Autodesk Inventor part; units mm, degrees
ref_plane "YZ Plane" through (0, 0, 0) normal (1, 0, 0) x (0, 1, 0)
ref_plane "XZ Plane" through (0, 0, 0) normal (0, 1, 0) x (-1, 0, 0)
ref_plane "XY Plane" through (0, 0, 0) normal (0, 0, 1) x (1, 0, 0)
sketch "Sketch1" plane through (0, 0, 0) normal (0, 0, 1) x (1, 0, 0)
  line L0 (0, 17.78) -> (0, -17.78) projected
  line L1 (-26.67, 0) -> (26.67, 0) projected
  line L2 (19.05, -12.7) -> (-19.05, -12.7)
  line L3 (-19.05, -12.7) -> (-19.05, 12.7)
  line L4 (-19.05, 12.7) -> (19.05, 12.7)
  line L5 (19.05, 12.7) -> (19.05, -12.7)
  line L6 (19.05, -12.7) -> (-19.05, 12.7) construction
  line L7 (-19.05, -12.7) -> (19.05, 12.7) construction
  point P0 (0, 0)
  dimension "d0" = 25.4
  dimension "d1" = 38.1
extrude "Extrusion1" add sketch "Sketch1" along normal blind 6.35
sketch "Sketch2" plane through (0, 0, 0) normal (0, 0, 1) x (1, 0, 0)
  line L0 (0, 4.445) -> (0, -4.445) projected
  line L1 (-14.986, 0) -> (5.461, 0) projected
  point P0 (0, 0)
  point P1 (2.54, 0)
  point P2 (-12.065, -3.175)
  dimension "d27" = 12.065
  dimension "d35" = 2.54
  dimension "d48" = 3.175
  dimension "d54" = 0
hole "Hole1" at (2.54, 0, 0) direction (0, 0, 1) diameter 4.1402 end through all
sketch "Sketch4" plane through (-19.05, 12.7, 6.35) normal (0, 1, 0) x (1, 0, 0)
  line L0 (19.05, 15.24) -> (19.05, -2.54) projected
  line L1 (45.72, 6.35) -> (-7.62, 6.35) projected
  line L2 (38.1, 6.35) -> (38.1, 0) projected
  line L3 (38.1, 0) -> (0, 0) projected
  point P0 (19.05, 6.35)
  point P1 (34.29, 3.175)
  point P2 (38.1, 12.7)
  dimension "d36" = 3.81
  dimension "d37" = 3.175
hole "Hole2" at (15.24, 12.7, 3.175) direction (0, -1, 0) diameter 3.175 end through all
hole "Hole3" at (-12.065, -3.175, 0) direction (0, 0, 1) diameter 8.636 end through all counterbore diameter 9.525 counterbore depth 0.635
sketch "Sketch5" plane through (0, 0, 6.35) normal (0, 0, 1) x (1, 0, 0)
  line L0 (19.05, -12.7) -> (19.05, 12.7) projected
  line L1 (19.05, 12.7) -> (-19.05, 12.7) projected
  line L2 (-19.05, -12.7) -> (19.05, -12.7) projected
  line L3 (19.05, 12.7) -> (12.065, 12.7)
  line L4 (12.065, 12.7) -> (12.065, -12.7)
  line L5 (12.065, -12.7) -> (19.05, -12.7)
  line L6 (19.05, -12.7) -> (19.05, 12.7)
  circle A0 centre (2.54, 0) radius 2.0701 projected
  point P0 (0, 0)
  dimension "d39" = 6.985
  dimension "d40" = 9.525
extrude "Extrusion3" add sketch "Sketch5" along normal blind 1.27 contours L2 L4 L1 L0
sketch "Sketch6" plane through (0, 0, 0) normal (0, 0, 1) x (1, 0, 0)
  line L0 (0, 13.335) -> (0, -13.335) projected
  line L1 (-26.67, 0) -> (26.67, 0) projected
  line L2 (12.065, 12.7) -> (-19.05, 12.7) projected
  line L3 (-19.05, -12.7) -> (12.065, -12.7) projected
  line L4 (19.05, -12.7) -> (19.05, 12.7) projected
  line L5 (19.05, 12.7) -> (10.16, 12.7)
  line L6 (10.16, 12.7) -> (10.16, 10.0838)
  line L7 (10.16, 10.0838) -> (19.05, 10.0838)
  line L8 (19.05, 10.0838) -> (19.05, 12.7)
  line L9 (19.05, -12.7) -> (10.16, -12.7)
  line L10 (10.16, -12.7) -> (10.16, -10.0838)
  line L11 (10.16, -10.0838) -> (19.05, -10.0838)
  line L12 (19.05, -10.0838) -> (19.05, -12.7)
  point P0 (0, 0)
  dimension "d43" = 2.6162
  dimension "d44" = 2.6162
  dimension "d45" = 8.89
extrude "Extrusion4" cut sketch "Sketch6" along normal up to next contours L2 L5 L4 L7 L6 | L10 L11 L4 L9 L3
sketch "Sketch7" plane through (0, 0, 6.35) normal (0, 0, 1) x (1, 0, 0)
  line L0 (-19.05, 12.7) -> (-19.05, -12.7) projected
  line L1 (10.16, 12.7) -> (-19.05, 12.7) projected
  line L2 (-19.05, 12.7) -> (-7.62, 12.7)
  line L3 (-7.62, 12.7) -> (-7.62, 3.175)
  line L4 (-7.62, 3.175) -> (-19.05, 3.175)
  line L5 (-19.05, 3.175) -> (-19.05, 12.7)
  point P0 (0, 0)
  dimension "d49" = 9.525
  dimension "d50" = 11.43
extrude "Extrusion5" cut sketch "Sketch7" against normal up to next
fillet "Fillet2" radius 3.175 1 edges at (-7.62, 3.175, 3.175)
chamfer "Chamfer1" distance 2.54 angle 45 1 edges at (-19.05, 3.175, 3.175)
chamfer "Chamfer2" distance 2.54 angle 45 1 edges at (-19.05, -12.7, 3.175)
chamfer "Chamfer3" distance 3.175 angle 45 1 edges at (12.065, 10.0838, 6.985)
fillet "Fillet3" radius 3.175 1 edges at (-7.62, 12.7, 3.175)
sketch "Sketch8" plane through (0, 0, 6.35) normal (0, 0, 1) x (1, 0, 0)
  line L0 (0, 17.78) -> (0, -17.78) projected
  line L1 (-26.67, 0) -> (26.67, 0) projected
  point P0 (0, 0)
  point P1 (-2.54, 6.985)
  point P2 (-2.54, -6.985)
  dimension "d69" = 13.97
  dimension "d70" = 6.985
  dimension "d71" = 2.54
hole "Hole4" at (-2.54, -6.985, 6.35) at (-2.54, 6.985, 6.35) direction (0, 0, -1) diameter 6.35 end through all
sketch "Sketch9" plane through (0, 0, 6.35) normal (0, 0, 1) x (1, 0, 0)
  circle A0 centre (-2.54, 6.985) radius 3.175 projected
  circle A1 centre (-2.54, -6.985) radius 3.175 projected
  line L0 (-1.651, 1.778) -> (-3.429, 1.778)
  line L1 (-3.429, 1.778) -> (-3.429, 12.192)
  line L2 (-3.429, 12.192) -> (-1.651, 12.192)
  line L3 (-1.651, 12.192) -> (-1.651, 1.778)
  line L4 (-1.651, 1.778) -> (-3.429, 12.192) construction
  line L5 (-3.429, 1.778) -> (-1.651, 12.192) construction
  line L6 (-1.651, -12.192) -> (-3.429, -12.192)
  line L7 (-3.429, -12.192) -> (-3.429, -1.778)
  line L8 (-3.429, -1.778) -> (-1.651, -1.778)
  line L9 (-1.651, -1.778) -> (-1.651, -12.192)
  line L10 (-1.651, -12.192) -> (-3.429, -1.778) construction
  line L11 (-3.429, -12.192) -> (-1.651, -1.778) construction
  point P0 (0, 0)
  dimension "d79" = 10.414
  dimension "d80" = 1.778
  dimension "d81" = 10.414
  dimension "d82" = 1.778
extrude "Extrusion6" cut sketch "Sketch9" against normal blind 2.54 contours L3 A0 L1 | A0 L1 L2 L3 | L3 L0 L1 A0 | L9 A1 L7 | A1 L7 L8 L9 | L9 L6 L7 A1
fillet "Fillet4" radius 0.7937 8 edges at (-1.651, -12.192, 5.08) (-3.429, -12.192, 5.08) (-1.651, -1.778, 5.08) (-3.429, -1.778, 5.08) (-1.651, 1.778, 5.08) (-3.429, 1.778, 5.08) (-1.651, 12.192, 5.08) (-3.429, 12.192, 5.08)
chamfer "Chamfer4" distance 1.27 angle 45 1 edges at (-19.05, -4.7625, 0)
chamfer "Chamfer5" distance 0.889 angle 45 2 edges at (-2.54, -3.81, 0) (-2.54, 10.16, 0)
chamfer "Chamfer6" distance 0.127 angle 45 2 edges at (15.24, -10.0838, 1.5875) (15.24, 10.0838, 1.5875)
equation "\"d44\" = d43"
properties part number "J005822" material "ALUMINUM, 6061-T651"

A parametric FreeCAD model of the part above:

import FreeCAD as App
import Part
import Sketcher
from FreeCAD import Vector
Q = App.Units.Quantity


def edges_at(feature, points):
    """Names of the edges that pass closest to the given points."""
    edges = feature.Shape.Edges
    near = lambda p: min(range(len(edges)), key=lambda i: edges[i].distToShape(Part.Vertex(*p))[0])
    return sorted({f"Edge{near(p) + 1}" for p in points})


def add_polygon(sketch, points):
    """Adds a closed chain of lines whose ends are joined by coincident constraints."""
    first, n = sketch.GeometryCount, len(points)
    for a, b in zip(points, points[1:] + points[:1]):
        sketch.addGeometry(Part.LineSegment(App.Vector(*a, 0), App.Vector(*b, 0)), False)
    for i in range(n):
        sketch.addConstraint(Sketcher.Constraint("Coincident", first + i, 2, first + (i + 1) % n, 1))

doc = App.newDocument("Part")
body = doc.addObject("PartDesign::Body", "Body")

# Sketch on XY plane
sketch1 = body.newObject("Sketcher::SketchObject", "Sketch")
sketch1.AttachmentSupport = (doc.getObject("XY_Plane"), [""])
sketch1.MapMode = "FlatFace"
add_polygon(sketch1, [(19, 13), (-19, 13), (-19, -13), (19, -13)])  # lines 0-3
sketch1.addConstraint(Sketcher.Constraint("Horizontal", 0))
sketch1.addConstraint(Sketcher.Constraint("Vertical", 1))
sketch1.addConstraint(Sketcher.Constraint("Horizontal", 2))
sketch1.addConstraint(Sketcher.Constraint("Vertical", 3))
sketch1.addConstraint(Sketcher.Constraint("Symmetric", 0, 2, 2, 2, -1, 1))
sketch1.addConstraint(Sketcher.Constraint("DistanceY", 1, 2, 1, 1, Q("1 in")))
sketch1.addConstraint(Sketcher.Constraint("DistanceX", 0, 2, 0, 1, Q("1.5 in")))
pad1 = body.newObject("PartDesign::Pad", "Pad")
pad1.Profile = sketch1
pad1.Length = Q("0.25 in")

# Sketch on XY plane
sketch2 = body.newObject("Sketcher::SketchObject", "Sketch001")
sketch2.AttachmentSupport = (doc.getObject("XY_Plane"), [""])
sketch2.MapMode = "FlatFace"
sketch2.addGeometry(Part.Circle(Vector(2.5, 0, 0), Vector(0, 0, 1), 2.1), False)
sketch2.addConstraint(Sketcher.Constraint("PointOnObject", 0, 3, -1))
sketch2.addConstraint(Sketcher.Constraint("Diameter", 0, Q("0.163 in")))
sketch2.addConstraint(Sketcher.Constraint("DistanceX", -1, 1, 0, 3, Q("0.1 in")))
doc.recompute()
hole = body.newObject("PartDesign::Hole", "Hole")
hole.Profile = sketch2
hole.ThreadType = "None"
hole.Diameter = Q("0.163 in")
hole.DepthType = "ThroughAll"
hole.Reversed = True

# Sketch on XZ plane
sketch3 = body.newObject("Sketcher::SketchObject", "Sketch002")
sketch3.AttachmentSupport = (doc.getObject("XZ_Plane"), [""])
sketch3.MapMode = "FlatFace"
sketch3.AttachmentOffset = App.Placement(Vector(0, 0, -0.5 * 25.4), App.Rotation())
sketch3.addGeometry(Part.Circle(Vector(15.2, 3.2, 0), Vector(0, 0, 1), 1.6), False)
sketch3.addConstraint(Sketcher.Constraint("Diameter", 0, Q("0.125 in")))
sketch3.addConstraint(Sketcher.Constraint("DistanceX", -1, 1, 0, 3, Q("0.6 in")))
sketch3.addConstraint(Sketcher.Constraint("DistanceY", -1, 1, 0, 3, Q("0.125 in")))
doc.recompute()
hole2 = body.newObject("PartDesign::Hole", "Hole001")
hole2.Profile = sketch3
hole2.ThreadType = "None"
hole2.Diameter = Q("0.125 in")
hole2.DepthType = "ThroughAll"
hole2.Reversed = True

# Sketch on XY plane
sketch4 = body.newObject("Sketcher::SketchObject", "Sketch003")
sketch4.AttachmentSupport = (doc.getObject("XY_Plane"), [""])
sketch4.MapMode = "FlatFace"
sketch4.addGeometry(Part.Circle(Vector(-12.1, -3.2, 0), Vector(0, 0, 1), 4.3), False)
sketch4.addConstraint(Sketcher.Constraint("Diameter", 0, Q("0.34 in")))
sketch4.addConstraint(Sketcher.Constraint("DistanceX", 0, 3, -1, 1, Q("0.475 in")))
sketch4.addConstraint(Sketcher.Constraint("DistanceY", 0, 3, -1, 1, Q("0.125 in")))
doc.recompute()
hole3 = body.newObject("PartDesign::Hole", "Hole002")
hole3.Profile = sketch4
hole3.ThreadType = "None"
hole3.Diameter = Q("0.34 in")
hole3.DepthType = "ThroughAll"
hole3.HoleCutType = "Counterbore"
hole3.HoleCutDiameter = Q("0.375 in")
hole3.HoleCutDepth = Q("0.025 in")
hole3.Reversed = True

# Sketch on XY plane
sketch5 = body.newObject("Sketcher::SketchObject", "Sketch004")
sketch5.AttachmentSupport = (doc.getObject("XY_Plane"), [""])
sketch5.MapMode = "FlatFace"
sketch5.AttachmentOffset = App.Placement(Vector(0, 0, 0.25 * 25.4), App.Rotation())
add_polygon(sketch5, [(12, -13), (19, -13), (19, 13), (12, 13)])  # lines 0-3
sketch5.addConstraint(Sketcher.Constraint("Horizontal", 0))
sketch5.addConstraint(Sketcher.Constraint("Vertical", 1))
sketch5.addConstraint(Sketcher.Constraint("Horizontal", 2))
sketch5.addConstraint(Sketcher.Constraint("Vertical", 3))
sketch5.addConstraint(Sketcher.Constraint("DistanceX", 0, 1, 0, 2, Q("0.275 in")))
sketch5.addConstraint(Sketcher.Constraint("DistanceY", 1, 1, 1, 2, Q("1 in")))
sketch5.addConstraint(Sketcher.Constraint("DistanceY", 0, 2, -1, 1, Q("0.5 in")))
sketch5.addConstraint(Sketcher.Constraint("DistanceX", -1, 1, 0, 2, Q("0.75 in")))
pad2 = body.newObject("PartDesign::Pad", "Pad001")
pad2.Profile = sketch5
pad2.Length = Q("0.05 in")

# Sketch on XY plane
sketch6 = body.newObject("Sketcher::SketchObject", "Sketch005")
sketch6.AttachmentSupport = (doc.getObject("XY_Plane"), [""])
sketch6.MapMode = "FlatFace"
add_polygon(sketch6, [(19.1, 12.7), (10.2, 12.7), (10.2, 10.1), (19.1, 10.1)])  # lines 0-3
add_polygon(sketch6, [(10.2, -10.1), (10.2, -12.7), (19.1, -12.7), (19.1, -10.1)])  # lines 4-7
sketch6.addConstraint(Sketcher.Constraint("Horizontal", 0))
sketch6.addConstraint(Sketcher.Constraint("Vertical", 1))
sketch6.addConstraint(Sketcher.Constraint("Horizontal", 2))
sketch6.addConstraint(Sketcher.Constraint("Vertical", 3))
sketch6.addConstraint(Sketcher.Constraint("Vertical", 4))
sketch6.addConstraint(Sketcher.Constraint("Horizontal", 5))
sketch6.addConstraint(Sketcher.Constraint("Vertical", 6))
sketch6.addConstraint(Sketcher.Constraint("Horizontal", 7))
sketch6.addConstraint(Sketcher.Constraint("Symmetric", 0, 2, 4, 2, -1))
sketch6.addConstraint(Sketcher.Constraint("Symmetric", 2, 2, 6, 2, -1))
sketch6.addConstraint(Sketcher.Constraint("DistanceX", 0, 2, 0, 1, Q("0.35 in")))
sketch6.addConstraint(Sketcher.Constraint("DistanceY", 1, 2, 1, 1, Q("0.103 in")))
sketch6.addConstraint(Sketcher.Constraint("DistanceY", 4, 2, 0, 2, Q("1 in")))
sketch6.addConstraint(Sketcher.Constraint("DistanceX", -1, 1, 0, 2, Q("0.4 in")))
pocket1 = body.newObject("PartDesign::Pocket", "Pocket")
pocket1.Profile = sketch6
pocket1.Length = Q("0.3 in")
pocket1.Reversed = True

# Sketch on XY plane
sketch7 = body.newObject("Sketcher::SketchObject", "Sketch006")
sketch7.AttachmentSupport = (doc.getObject("XY_Plane"), [""])
sketch7.MapMode = "FlatFace"
sketch7.AttachmentOffset = App.Placement(Vector(0, 0, 0.25 * 25.4), App.Rotation())
add_polygon(sketch7, [(-8, 13), (-19, 13), (-19, 3), (-8, 3)])  # lines 0-3
sketch7.addConstraint(Sketcher.Constraint("Horizontal", 0))
sketch7.addConstraint(Sketcher.Constraint("Vertical", 1))
sketch7.addConstraint(Sketcher.Constraint("Horizontal", 2))
sketch7.addConstraint(Sketcher.Constraint("Vertical", 3))
sketch7.addConstraint(Sketcher.Constraint("DistanceX", 0, 2, 0, 1, Q("0.45 in")))
sketch7.addConstraint(Sketcher.Constraint("DistanceY", 1, 2, 1, 1, Q("0.375 in")))
sketch7.addConstraint(Sketcher.Constraint("DistanceY", -1, 1, 0, 2, Q("0.5 in")))
sketch7.addConstraint(Sketcher.Constraint("DistanceX", 2, 2, -1, 1, Q("0.3 in")))
pocket2 = body.newObject("PartDesign::Pocket", "Pocket001")
pocket2.Profile = sketch7
pocket2.Type = "UpToFirst"
doc.recompute()

fillet = body.newObject("PartDesign::Fillet", "Fillet")
fillet.Base = (pocket2, edges_at(pocket2, [(-7.62, 3.175, 3.175)]))
fillet.Radius = Q("0.125 in")
doc.recompute()

chamfer = body.newObject("PartDesign::Chamfer", "Chamfer")
chamfer.Base = (fillet, edges_at(fillet, [(-19.05, 3.175, 3.175)]))
chamfer.Size = Q("0.1 in")
doc.recompute()

chamfer2 = body.newObject("PartDesign::Chamfer", "Chamfer001")
chamfer2.Base = (chamfer, edges_at(chamfer, [(-19.05, -12.7, 3.175)]))
chamfer2.Size = Q("0.1 in")
doc.recompute()

chamfer3 = body.newObject("PartDesign::Chamfer", "Chamfer002")
chamfer3.Base = (chamfer2, edges_at(chamfer2, [(12.065, 10.084, 6.985)]))
chamfer3.Size = Q("0.125 in")
doc.recompute()

fillet2 = body.newObject("PartDesign::Fillet", "Fillet001")
fillet2.Base = (chamfer3, edges_at(chamfer3, [(-7.62, 12.7, 3.175)]))
fillet2.Radius = Q("0.125 in")

# Sketch on XY plane
sketch8 = body.newObject("Sketcher::SketchObject", "Sketch007")
sketch8.AttachmentSupport = (doc.getObject("XY_Plane"), [""])
sketch8.MapMode = "FlatFace"
sketch8.AttachmentOffset = App.Placement(Vector(0, 0, 0.25 * 25.4), App.Rotation())
sketch8.addGeometry(Part.Circle(Vector(-2.5, -7, 0), Vector(0, 0, 1), 3.2), False)
sketch8.addGeometry(Part.Circle(Vector(-2.5, 7, 0), Vector(0, 0, 1), 3.2), False)
sketch8.addConstraint(Sketcher.Constraint("Equal", 0, 1))
sketch8.addConstraint(Sketcher.Constraint("Symmetric", 0, 3, 1, 3, -1))
sketch8.addConstraint(Sketcher.Constraint("Diameter", 0, Q("0.25 in")))
sketch8.addConstraint(Sketcher.Constraint("DistanceX", 0, 3, -1, 1, Q("0.1 in")))
sketch8.addConstraint(Sketcher.Constraint("DistanceY", 0, 3, 1, 3, Q("0.55 in")))
doc.recompute()
hole4 = body.newObject("PartDesign::Hole", "Hole003")
hole4.Profile = sketch8
hole4.ThreadType = "None"
hole4.Diameter = Q("0.25 in")
hole4.DepthType = "ThroughAll"

# Sketch on XY plane
sketch9 = body.newObject("Sketcher::SketchObject", "Sketch008")
sketch9.AttachmentSupport = (doc.getObject("XY_Plane"), [""])
sketch9.MapMode = "FlatFace"
sketch9.AttachmentOffset = App.Placement(Vector(0, 0, 0.25 * 25.4), App.Rotation())
add_polygon(sketch9, [(-1.7, 12.2), (-3.4, 12.2), (-3.4, 1.8), (-1.7, 1.8)])  # lines 0-3
add_polygon(sketch9, [(-1.7, -1.8), (-3.4, -1.8), (-3.4, -12.2), (-1.7, -12.2)])  # lines 4-7
sketch9.addConstraint(Sketcher.Constraint("Horizontal", 0))
sketch9.addConstraint(Sketcher.Constraint("Vertical", 1))
sketch9.addConstraint(Sketcher.Constraint("Horizontal", 2))
sketch9.addConstraint(Sketcher.Constraint("Vertical", 3))
sketch9.addConstraint(Sketcher.Constraint("Horizontal", 4))
sketch9.addConstraint(Sketcher.Constraint("Vertical", 5))
sketch9.addConstraint(Sketcher.Constraint("Horizontal", 6))
sketch9.addConstraint(Sketcher.Constraint("Vertical", 7))
sketch9.addConstraint(Sketcher.Constraint("Symmetric", 1, 2, 4, 2, -1))
sketch9.addConstraint(Sketcher.Constraint("Symmetric", 3, 2, 6, 2, -1))
sketch9.addConstraint(Sketcher.Constraint("DistanceX", 0, 2, 0, 1, Q("0.07 in")))
sketch9.addConstraint(Sketcher.Constraint("DistanceY", 1, 2, 1, 1, Q("0.41 in")))
sketch9.addConstraint(Sketcher.Constraint("DistanceY", -1, 1, 1, 2, Q("0.07 in")))
sketch9.addConstraint(Sketcher.Constraint("DistanceX", 0, 2, -1, 1, Q("0.135 in")))
pocket3 = body.newObject("PartDesign::Pocket", "Pocket002")
pocket3.Profile = sketch9
pocket3.Length = Q("0.1 in")
doc.recompute()

fillet3 = body.newObject("PartDesign::Fillet", "Fillet002")
fillet3.Base = (pocket3, edges_at(pocket3, [
    (-1.651, -12.192, 5.08),
    (-3.429, -12.192, 5.08),
    (-1.651, -1.778, 5.08),
    (-3.429, -1.778, 5.08),
    (-1.651, 1.778, 5.08),
    (-3.429, 1.778, 5.08),
    (-1.651, 12.192, 5.08),
    (-3.429, 12.192, 5.08),
]))
fillet3.Radius = Q("0.031248 in")
doc.recompute()

chamfer4 = body.newObject("PartDesign::Chamfer", "Chamfer003")
chamfer4.Base = (fillet3, edges_at(fillet3, [(-19.05, -4.763, 0)]))
chamfer4.Size = Q("0.05 in")
doc.recompute()

chamfer5 = body.newObject("PartDesign::Chamfer", "Chamfer004")
chamfer5.Base = (chamfer4, edges_at(chamfer4, [(-2.54, -3.81, 0), (-2.54, 10.16, 0)]))
chamfer5.Size = Q("0.035 in")
doc.recompute()

chamfer6 = body.newObject("PartDesign::Chamfer", "Chamfer005")
chamfer6.Base = (chamfer5, edges_at(chamfer5, [(15.24, -10.084, 1.587), (15.24, 10.084, 1.587)]))
chamfer6.Size = Q("0.005 in")

doc.recompute()
